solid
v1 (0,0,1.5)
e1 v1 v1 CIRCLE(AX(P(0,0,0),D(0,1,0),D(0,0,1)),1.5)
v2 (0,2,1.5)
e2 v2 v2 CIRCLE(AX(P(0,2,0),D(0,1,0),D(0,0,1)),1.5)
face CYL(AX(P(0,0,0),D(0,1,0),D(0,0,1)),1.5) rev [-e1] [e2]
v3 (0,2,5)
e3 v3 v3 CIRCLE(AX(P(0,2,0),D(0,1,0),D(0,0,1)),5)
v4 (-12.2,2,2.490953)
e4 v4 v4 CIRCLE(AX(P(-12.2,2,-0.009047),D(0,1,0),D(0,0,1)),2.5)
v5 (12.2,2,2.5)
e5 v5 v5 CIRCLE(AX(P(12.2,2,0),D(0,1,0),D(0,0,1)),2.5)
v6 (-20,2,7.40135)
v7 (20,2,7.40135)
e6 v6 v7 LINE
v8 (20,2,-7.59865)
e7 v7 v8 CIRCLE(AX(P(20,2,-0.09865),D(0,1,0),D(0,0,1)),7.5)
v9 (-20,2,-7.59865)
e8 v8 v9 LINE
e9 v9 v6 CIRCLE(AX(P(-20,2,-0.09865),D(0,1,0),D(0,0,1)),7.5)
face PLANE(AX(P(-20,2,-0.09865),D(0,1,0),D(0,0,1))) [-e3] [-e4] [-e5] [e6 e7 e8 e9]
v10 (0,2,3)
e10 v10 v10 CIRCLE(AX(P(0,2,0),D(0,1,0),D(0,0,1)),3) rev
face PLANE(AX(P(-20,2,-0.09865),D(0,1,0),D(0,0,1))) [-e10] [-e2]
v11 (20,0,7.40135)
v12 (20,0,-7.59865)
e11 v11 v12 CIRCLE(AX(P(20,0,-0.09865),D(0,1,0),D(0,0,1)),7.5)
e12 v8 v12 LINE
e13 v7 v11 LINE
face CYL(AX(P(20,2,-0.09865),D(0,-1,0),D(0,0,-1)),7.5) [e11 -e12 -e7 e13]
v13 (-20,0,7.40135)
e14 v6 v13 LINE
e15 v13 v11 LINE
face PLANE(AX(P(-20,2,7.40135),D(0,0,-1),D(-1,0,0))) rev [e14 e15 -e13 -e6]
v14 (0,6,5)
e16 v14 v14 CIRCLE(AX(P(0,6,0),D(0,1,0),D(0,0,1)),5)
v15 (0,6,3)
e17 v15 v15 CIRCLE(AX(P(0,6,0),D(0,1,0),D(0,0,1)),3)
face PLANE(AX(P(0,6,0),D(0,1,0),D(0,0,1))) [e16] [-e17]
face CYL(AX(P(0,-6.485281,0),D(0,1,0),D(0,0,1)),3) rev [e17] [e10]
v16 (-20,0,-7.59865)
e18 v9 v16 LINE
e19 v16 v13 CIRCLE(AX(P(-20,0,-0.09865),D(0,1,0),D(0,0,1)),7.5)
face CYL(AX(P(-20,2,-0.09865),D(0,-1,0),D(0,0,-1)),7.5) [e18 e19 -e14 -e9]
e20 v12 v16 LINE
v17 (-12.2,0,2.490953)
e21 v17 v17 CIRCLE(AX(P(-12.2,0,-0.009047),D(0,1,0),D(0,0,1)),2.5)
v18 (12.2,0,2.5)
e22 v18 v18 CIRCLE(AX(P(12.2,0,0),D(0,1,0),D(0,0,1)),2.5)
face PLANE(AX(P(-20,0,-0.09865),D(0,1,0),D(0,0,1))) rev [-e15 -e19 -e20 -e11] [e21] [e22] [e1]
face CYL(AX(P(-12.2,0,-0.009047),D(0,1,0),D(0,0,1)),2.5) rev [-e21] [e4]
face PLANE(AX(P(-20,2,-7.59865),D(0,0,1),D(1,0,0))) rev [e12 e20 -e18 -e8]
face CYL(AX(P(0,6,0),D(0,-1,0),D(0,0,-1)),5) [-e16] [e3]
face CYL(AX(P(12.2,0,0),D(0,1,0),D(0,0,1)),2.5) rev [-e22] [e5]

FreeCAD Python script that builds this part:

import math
import FreeCAD as App
import Part
import Sketcher
from FreeCAD import Vector
Q = App.Units.Quantity

doc = App.newDocument("Part")
body = doc.addObject("PartDesign::Body", "Body")

sketch1 = body.newObject("Sketcher::SketchObject", "Sketch")
sketch1.AttachmentSupport = (doc.getObject("XZ_Plane"), [""])
sketch1.MapMode = "FlatFace"
sketch1.addGeometry(Part.LineSegment(Vector(20, -8, 0), Vector(-20, -8, 0)), False)
sketch1.addGeometry(Part.ArcOfCircle(Part.Circle(Vector(-20, 0, 0), Vector(0, 0, 1), 8), math.radians(90), math.radians(270)), False)
sketch1.addGeometry(Part.LineSegment(Vector(-20, 7, 0), Vector(20, 7, 0)), False)
sketch1.addGeometry(Part.ArcOfCircle(Part.Circle(Vector(20, 0, 0), Vector(0, 0, 1), 8), math.radians(-90), math.radians(90)), False)
sketch1.addConstraint(Sketcher.Constraint("Tangent", 0, 2, 1, 2))
sketch1.addConstraint(Sketcher.Constraint("Tangent", 1, 1, 2, 1))
sketch1.addConstraint(Sketcher.Constraint("Tangent", 2, 2, 3, 2))
sketch1.addConstraint(Sketcher.Constraint("Tangent", 3, 1, 0, 1))
sketch1.addConstraint(Sketcher.Constraint("Horizontal", 0))
sketch1.addConstraint(Sketcher.Constraint("Horizontal", 2))
sketch1.addConstraint(Sketcher.Constraint("Radius", 1, Q("7.5 mm")))
sketch1.addConstraint(Sketcher.Constraint("DistanceX", 0, 2, 0, 1, Q("40 mm")))
sketch1.addConstraint(Sketcher.Constraint("DistanceX", 1, 3, -1, 1, Q("20 mm")))
sketch1.addConstraint(Sketcher.Constraint("DistanceY", 1, 3, -1, 1, Q("0.09865 mm")))
pad1 = body.newObject("PartDesign::Pad", "Pad")
pad1.Profile = sketch1
pad1.Length = 2
pad1.Reversed = True

sketch2 = body.newObject("Sketcher::SketchObject", "Sketch001")
sketch2.AttachmentSupport = (doc.getObject("XZ_Plane"), [""])
sketch2.MapMode = "FlatFace"
sketch2.AttachmentOffset = App.Placement(Vector(0, 0, -2), App.Rotation())
sketch2.addGeometry(Part.Circle(Vector(0, 0, 0), Vector(0, 0, 1), 5), False)
sketch2.addConstraint(Sketcher.Constraint("Coincident", 0, 3, -1, 1))
sketch2.addConstraint(Sketcher.Constraint("Diameter", 0, Q("10 mm")))
pad2 = body.newObject("PartDesign::Pad", "Pad001")
pad2.Profile = sketch2
pad2.Length = 4
pad2.Reversed = True

sketch3 = body.newObject("Sketcher::SketchObject", "Sketch002")
sketch3.AttachmentSupport = (doc.getObject("XZ_Plane"), [""])
sketch3.MapMode = "FlatFace"
sketch3.AttachmentOffset = App.Placement(Vector(0, 0, -6), App.Rotation())
sketch3.addGeometry(Part.Circle(Vector(0, 0, 0), Vector(0, 0, 1), 3), False)
sketch3.addConstraint(Sketcher.Constraint("Coincident", 0, 3, -1, 1))
sketch3.addConstraint(Sketcher.Constraint("Diameter", 0, Q("6 mm")))
pocket1 = body.newObject("PartDesign::Pocket", "Pocket")
pocket1.Profile = sketch3
pocket1.Length = 4
pocket1.Reversed = True

sketch4 = body.newObject("Sketcher::SketchObject", "Sketch003")
sketch4.AttachmentSupport = (doc.getObject("XZ_Plane"), [""])
sketch4.MapMode = "FlatFace"
sketch4.AttachmentOffset = App.Placement(Vector(0, 0, -2), App.Rotation())
sketch4.addGeometry(Part.Circle(Vector(0, 0, 0), Vector(0, 0, 1), 1.5), False)
sketch4.addConstraint(Sketcher.Constraint("Coincident", 0, 3, -1, 1))
sketch4.addConstraint(Sketcher.Constraint("Diameter", 0, Q("3 mm")))
pocket2 = body.newObject("PartDesign::Pocket", "Pocket001")
pocket2.Profile = sketch4
pocket2.Length = 2
pocket2.Reversed = True

sketch5 = body.newObject("Sketcher::SketchObject", "Sketch004")
sketch5.AttachmentSupport = (doc.getObject("XZ_Plane"), [""])
sketch5.MapMode = "FlatFace"
sketch5.AttachmentOffset = App.Placement(Vector(0, 0, -2), App.Rotation())
sketch5.addGeometry(Part.Circle(Vector(-12.2, 0, 0), Vector(0, 0, 1), 2.5), False)
sketch5.addConstraint(Sketcher.Constraint("Diameter", 0, Q("5 mm")))
sketch5.addConstraint(Sketcher.Constraint("DistanceX", 0, 3, -1, 1, Q("12.2 mm")))
sketch5.addConstraint(Sketcher.Constraint("DistanceY", 0, 3, -1, 1, Q("0.009047 mm")))
pocket3 = body.newObject("PartDesign::Pocket", "Pocket002")
pocket3.Profile = sketch5
pocket3.Type = "ThroughAll"
pocket3.Reversed = True

sketch6 = body.newObject("Sketcher::SketchObject", "Sketch005")
sketch6.AttachmentSupport = (doc.getObject("XZ_Plane"), [""])
sketch6.MapMode = "FlatFace"
sketch6.AttachmentOffset = App.Placement(Vector(0, 0, -2), App.Rotation())
sketch6.addGeometry(Part.Circle(Vector(12.2, 0, 0), Vector(0, 0, 1), 2.5), False)
sketch6.addConstraint(Sketcher.Constraint("PointOnObject", 0, 3, -1))
sketch6.addConstraint(Sketcher.Constraint("Diameter", 0, Q("5 mm")))
sketch6.addConstraint(Sketcher.Constraint("DistanceX", -1, 1, 0, 3, Q("12.2 mm")))
pocket4 = body.newObject("PartDesign::Pocket", "Pocket003")
pocket4.Profile = sketch6
pocket4.Type = "ThroughAll"
pocket4.Reversed = True

doc.recompute()
